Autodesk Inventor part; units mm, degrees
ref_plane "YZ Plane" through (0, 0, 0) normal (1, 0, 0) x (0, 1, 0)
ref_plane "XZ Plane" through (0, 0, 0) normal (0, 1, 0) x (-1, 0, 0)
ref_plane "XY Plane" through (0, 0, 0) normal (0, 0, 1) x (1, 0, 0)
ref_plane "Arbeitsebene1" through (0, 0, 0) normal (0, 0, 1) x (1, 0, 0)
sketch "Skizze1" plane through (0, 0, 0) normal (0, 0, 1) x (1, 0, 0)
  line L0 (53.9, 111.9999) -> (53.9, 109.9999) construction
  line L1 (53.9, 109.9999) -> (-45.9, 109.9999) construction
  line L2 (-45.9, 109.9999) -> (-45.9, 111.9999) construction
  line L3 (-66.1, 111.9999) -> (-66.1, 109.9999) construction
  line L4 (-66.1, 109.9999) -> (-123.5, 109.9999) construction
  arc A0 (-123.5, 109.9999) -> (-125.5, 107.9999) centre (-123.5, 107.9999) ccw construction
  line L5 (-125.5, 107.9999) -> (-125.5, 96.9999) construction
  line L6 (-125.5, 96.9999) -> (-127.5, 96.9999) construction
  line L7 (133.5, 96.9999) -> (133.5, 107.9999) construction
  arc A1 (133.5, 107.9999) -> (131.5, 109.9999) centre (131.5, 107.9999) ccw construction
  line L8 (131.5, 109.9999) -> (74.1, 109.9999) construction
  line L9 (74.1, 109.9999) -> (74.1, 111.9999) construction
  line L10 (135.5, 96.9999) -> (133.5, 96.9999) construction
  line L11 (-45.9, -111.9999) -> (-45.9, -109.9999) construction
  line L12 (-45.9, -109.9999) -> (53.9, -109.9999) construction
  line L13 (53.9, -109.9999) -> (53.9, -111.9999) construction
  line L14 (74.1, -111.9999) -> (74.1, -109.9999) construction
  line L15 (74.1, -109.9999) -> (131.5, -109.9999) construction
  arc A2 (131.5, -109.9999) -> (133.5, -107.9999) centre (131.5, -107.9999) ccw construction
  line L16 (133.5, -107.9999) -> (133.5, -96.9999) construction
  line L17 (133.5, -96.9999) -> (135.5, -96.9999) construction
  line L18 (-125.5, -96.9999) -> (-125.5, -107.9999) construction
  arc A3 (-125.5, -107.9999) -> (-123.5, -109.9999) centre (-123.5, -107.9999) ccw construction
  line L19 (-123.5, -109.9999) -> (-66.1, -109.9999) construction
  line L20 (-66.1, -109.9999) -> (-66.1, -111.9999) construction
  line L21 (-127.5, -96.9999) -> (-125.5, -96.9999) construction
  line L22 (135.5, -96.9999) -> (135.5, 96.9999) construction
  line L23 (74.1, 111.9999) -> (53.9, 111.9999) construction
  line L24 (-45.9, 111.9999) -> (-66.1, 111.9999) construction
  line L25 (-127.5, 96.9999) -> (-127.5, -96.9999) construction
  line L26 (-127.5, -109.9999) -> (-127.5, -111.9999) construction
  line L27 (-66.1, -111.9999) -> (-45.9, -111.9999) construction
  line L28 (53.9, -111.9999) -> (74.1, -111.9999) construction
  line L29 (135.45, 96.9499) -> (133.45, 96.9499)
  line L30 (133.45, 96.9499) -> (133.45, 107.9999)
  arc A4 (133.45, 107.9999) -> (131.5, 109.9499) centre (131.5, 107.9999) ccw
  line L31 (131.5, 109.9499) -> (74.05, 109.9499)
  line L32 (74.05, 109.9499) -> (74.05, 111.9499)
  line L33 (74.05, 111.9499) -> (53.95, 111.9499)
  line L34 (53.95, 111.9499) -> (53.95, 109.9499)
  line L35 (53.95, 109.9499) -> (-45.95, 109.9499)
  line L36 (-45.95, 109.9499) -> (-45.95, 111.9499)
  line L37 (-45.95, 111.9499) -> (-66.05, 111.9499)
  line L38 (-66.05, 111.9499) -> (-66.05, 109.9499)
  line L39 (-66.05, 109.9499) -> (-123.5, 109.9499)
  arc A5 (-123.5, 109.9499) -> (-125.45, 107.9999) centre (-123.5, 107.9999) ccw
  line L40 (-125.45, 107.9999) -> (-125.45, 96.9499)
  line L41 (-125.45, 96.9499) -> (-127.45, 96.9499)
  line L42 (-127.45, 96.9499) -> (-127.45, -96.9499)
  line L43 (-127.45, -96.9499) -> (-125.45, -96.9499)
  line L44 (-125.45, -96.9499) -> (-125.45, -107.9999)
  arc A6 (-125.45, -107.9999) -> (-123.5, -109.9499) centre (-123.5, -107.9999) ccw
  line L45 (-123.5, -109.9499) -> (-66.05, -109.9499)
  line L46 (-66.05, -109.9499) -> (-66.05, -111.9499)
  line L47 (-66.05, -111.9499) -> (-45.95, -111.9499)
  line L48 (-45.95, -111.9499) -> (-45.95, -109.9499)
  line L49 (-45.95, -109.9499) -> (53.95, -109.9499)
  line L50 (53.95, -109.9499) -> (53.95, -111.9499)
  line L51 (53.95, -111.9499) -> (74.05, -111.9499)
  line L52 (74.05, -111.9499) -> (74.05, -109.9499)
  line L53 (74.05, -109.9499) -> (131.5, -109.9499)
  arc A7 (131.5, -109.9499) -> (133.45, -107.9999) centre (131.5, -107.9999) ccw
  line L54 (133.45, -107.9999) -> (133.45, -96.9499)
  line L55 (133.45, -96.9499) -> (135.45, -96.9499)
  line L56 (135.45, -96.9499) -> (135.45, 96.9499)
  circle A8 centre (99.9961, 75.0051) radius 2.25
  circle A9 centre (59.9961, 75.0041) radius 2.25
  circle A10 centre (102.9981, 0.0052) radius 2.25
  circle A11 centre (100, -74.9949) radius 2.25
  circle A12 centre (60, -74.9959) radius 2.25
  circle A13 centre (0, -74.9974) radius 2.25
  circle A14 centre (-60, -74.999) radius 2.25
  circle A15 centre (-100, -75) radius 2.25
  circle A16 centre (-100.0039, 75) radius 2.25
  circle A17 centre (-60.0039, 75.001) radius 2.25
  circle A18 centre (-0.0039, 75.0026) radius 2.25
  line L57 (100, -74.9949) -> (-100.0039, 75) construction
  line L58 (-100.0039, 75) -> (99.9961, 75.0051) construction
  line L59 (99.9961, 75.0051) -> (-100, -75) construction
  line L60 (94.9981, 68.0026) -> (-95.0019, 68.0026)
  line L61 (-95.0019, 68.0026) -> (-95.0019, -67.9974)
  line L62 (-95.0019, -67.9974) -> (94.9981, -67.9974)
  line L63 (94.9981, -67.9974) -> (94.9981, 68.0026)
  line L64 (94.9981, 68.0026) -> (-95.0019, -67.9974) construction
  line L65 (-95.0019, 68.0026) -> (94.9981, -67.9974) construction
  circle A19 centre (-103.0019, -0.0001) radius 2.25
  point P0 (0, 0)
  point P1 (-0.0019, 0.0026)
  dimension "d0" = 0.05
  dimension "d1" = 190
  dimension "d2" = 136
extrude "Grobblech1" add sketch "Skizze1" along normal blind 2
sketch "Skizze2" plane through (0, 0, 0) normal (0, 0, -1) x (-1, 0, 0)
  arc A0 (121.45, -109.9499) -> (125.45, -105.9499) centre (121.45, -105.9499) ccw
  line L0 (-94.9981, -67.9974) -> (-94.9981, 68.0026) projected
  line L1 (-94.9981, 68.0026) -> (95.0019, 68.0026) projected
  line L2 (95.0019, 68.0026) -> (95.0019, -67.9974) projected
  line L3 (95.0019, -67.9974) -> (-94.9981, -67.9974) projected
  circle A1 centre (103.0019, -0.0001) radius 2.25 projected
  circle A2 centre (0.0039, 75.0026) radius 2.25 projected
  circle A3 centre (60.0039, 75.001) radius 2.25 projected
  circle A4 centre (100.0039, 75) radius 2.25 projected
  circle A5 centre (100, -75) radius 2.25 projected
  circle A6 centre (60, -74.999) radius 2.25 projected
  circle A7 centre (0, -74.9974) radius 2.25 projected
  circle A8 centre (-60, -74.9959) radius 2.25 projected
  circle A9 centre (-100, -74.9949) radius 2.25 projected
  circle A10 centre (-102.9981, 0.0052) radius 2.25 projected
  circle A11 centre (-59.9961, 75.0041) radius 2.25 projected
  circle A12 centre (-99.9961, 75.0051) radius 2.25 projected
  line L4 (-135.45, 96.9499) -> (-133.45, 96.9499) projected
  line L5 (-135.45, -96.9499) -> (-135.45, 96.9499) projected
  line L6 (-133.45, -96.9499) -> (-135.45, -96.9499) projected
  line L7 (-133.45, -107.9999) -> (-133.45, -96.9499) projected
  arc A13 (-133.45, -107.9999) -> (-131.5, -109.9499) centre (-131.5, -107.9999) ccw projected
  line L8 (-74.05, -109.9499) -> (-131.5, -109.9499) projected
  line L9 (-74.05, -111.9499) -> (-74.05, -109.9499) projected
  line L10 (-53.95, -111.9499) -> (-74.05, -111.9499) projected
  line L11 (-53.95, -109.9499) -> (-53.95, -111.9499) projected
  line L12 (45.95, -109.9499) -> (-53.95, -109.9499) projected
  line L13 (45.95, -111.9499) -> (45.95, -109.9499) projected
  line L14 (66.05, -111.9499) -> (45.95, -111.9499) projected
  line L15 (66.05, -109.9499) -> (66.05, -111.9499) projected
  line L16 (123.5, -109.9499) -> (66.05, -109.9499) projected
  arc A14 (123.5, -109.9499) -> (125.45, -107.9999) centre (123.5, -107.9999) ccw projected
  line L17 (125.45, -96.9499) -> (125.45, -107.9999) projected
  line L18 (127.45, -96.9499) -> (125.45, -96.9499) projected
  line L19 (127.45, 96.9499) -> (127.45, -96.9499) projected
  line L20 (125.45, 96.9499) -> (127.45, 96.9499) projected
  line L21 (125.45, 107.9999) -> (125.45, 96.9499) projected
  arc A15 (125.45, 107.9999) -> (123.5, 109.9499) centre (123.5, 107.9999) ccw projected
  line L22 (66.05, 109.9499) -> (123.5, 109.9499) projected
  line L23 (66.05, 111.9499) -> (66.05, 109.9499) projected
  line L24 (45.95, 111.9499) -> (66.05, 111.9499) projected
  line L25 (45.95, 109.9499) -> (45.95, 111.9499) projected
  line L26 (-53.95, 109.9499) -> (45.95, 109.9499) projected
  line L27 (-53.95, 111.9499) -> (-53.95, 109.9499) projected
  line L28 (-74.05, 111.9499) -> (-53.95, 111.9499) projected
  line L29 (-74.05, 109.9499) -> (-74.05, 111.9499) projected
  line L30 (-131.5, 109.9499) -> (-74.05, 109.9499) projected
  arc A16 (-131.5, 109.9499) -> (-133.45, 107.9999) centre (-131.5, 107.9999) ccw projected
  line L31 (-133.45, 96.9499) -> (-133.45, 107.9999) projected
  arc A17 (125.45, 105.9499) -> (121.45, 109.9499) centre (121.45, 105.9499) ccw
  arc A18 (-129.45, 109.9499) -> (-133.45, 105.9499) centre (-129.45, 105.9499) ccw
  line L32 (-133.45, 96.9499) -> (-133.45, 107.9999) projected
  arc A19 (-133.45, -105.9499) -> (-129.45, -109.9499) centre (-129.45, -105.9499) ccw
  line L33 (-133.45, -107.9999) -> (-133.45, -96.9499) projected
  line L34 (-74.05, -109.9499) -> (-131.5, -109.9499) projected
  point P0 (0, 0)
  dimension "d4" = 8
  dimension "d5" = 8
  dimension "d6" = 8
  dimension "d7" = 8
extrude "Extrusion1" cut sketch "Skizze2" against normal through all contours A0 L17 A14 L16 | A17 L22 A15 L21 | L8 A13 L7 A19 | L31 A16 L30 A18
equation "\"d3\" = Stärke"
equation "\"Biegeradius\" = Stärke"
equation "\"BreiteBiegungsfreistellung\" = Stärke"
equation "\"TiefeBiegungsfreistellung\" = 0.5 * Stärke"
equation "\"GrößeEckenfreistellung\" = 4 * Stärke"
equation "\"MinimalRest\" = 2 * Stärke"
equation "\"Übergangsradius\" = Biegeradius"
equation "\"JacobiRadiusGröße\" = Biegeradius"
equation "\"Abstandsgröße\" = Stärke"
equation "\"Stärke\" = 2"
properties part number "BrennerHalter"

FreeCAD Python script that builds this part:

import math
import FreeCAD as App
import Part
import Sketcher

doc = App.newDocument("Part")
body = doc.addObject("PartDesign::Body", "Body")

sketch1 = body.newObject("Sketcher::SketchObject", "Sketch")
sketch1.AttachmentSupport = (doc.getObject("XY_Plane"), [""])
sketch1.MapMode = "FlatFace"
sketch1.addGeometry([
    Part.LineSegment(App.Vector(135.4, -96.9, 0), App.Vector(135.4, 96.9, 0)),
    Part.LineSegment(App.Vector(135.4, 96.9, 0), App.Vector(133.4, 96.9, 0)),
    Part.LineSegment(App.Vector(133.4, 96.9, 0), App.Vector(133.4, 108, 0)),
    Part.ArcOfCircle(Part.Circle(App.Vector(131.5, 108, 0), App.Vector(0, 0, 1), 1.9), math.radians(0), math.radians(90)),
    Part.LineSegment(App.Vector(131.5, 109.9, 0), App.Vector(74, 109.9, 0)),
    Part.LineSegment(App.Vector(74, 109.9, 0), App.Vector(74, 111.9, 0)),
    Part.LineSegment(App.Vector(74, 111.9, 0), App.Vector(54, 111.9, 0)),
    Part.LineSegment(App.Vector(54, 111.9, 0), App.Vector(54, 109.9, 0)),
    Part.LineSegment(App.Vector(54, 109.9, 0), App.Vector(-46, 109.9, 0)),
    Part.LineSegment(App.Vector(-46, 109.9, 0), App.Vector(-46, 111.9, 0)),
    Part.LineSegment(App.Vector(-46, 111.9, 0), App.Vector(-66, 111.9, 0)),
    Part.LineSegment(App.Vector(-66, 111.9, 0), App.Vector(-66, 109.9, 0)),
    Part.LineSegment(App.Vector(-66, 109.9, 0), App.Vector(-123.5, 109.9, 0)),
    Part.ArcOfCircle(Part.Circle(App.Vector(-123.5, 108, 0), App.Vector(0, 0, 1), 2), math.radians(90), math.radians(180)),
    Part.LineSegment(App.Vector(-125.5, 108, 0), App.Vector(-125.5, 96.9, 0)),
    Part.LineSegment(App.Vector(-125.5, 96.9, 0), App.Vector(-127.5, 96.9, 0)),
    Part.LineSegment(App.Vector(-127.5, 96.9, 0), App.Vector(-127.5, -96.9, 0)),
    Part.LineSegment(App.Vector(-127.5, -96.9, 0), App.Vector(-125.5, -96.9, 0)),
    Part.LineSegment(App.Vector(-125.5, -96.9, 0), App.Vector(-125.5, -108, 0)),
    Part.ArcOfCircle(Part.Circle(App.Vector(-123.5, -108, 0), App.Vector(0, 0, 1), 2), math.radians(180), math.radians(270)),
    Part.LineSegment(App.Vector(-123.5, -109.9, 0), App.Vector(-66, -109.9, 0)),
    Part.LineSegment(App.Vector(-66, -109.9, 0), App.Vector(-66, -111.9, 0)),
    Part.LineSegment(App.Vector(-66, -111.9, 0), App.Vector(-46, -111.9, 0)),
    Part.LineSegment(App.Vector(-46, -111.9, 0), App.Vector(-46, -109.9, 0)),
    Part.LineSegment(App.Vector(-46, -109.9, 0), App.Vector(54, -109.9, 0)),
    Part.LineSegment(App.Vector(54, -109.9, 0), App.Vector(54, -111.9, 0)),
    Part.LineSegment(App.Vector(54, -111.9, 0), App.Vector(74, -111.9, 0)),
    Part.LineSegment(App.Vector(74, -111.9, 0), App.Vector(74, -109.9, 0)),
    Part.LineSegment(App.Vector(74, -109.9, 0), App.Vector(131.5, -109.9, 0)),
    Part.ArcOfCircle(Part.Circle(App.Vector(131.5, -108, 0), App.Vector(0, 0, 1), 2), math.radians(-90), math.radians(0)),
    Part.LineSegment(App.Vector(133.4, -108, 0), App.Vector(133.4, -96.9, 0)),
    Part.LineSegment(App.Vector(133.4, -96.9, 0), App.Vector(135.4, -96.9, 0)),
    Part.Circle(App.Vector(-100, -75, 0), App.Vector(0, 0, 1), 2.2),
    Part.Circle(App.Vector(-60, -75, 0), App.Vector(0, 0, 1), 2.2),
    Part.Circle(App.Vector(0, -75, 0), App.Vector(0, 0, 1), 2.2),
    Part.Circle(App.Vector(-103, 0, 0), App.Vector(0, 0, 1), 2.2),
    Part.Circle(App.Vector(60, -75, 0), App.Vector(0, 0, 1), 2.2),
    Part.Circle(App.Vector(100, -75, 0), App.Vector(0, 0, 1), 2.2),
    Part.LineSegment(App.Vector(-95, 68, 0), App.Vector(95, 68, 0)),
    Part.LineSegment(App.Vector(95, 68, 0), App.Vector(95, -68, 0)),
    Part.LineSegment(App.Vector(95, -68, 0), App.Vector(-95, -68, 0)),
    Part.LineSegment(App.Vector(-95, -68, 0), App.Vector(-95, 68, 0)),
    Part.Circle(App.Vector(-100, 75, 0), App.Vector(0, 0, 1), 2.2),
    Part.Circle(App.Vector(-60, 75, 0), App.Vector(0, 0, 1), 2.2),
    Part.Circle(App.Vector(0, 75, 0), App.Vector(0, 0, 1), 2.2),
    Part.Circle(App.Vector(103, 0, 0), App.Vector(0, 0, 1), 2.2),
    Part.Circle(App.Vector(60, 75, 0), App.Vector(0, 0, 1), 2.2),
    Part.Circle(App.Vector(100, 75, 0), App.Vector(0, 0, 1), 2.2),
], False)
sketch1.addConstraint([
    Sketcher.Constraint("Coincident", 0, 2, 1, 1),
    Sketcher.Constraint("Coincident", 1, 2, 2, 1),
    Sketcher.Constraint("Tangent", 2, 2, 3, 1),
    Sketcher.Constraint("Tangent", 3, 2, 4, 1),
    Sketcher.Constraint("Coincident", 4, 2, 5, 1),
    Sketcher.Constraint("Coincident", 5, 2, 6, 1),
    Sketcher.Constraint("Coincident", 6, 2, 7, 1),
    Sketcher.Constraint("Coincident", 7, 2, 8, 1),
    Sketcher.Constraint("Coincident", 8, 2, 9, 1),
    Sketcher.Constraint("Coincident", 9, 2, 10, 1),
    Sketcher.Constraint("Coincident", 10, 2, 11, 1),
    Sketcher.Constraint("Coincident", 11, 2, 12, 1),
    Sketcher.Constraint("Tangent", 12, 2, 13, 1),
    Sketcher.Constraint("Tangent", 13, 2, 14, 1),
    Sketcher.Constraint("Coincident", 14, 2, 15, 1),
    Sketcher.Constraint("Coincident", 15, 2, 16, 1),
    Sketcher.Constraint("Coincident", 16, 2, 17, 1),
    Sketcher.Constraint("Coincident", 17, 2, 18, 1),
    Sketcher.Constraint("Tangent", 18, 2, 19, 1),
    Sketcher.Constraint("Tangent", 19, 2, 20, 1),
    Sketcher.Constraint("Coincident", 20, 2, 21, 1),
    Sketcher.Constraint("Coincident", 21, 2, 22, 1),
    Sketcher.Constraint("Coincident", 22, 2, 23, 1),
    Sketcher.Constraint("Coincident", 23, 2, 24, 1),
    Sketcher.Constraint("Coincident", 24, 2, 25, 1),
    Sketcher.Constraint("Coincident", 25, 2, 26, 1),
    Sketcher.Constraint("Coincident", 26, 2, 27, 1),
    Sketcher.Constraint("Coincident", 27, 2, 28, 1),
    Sketcher.Constraint("Tangent", 28, 2, 29, 1),
    Sketcher.Constraint("Tangent", 29, 2, 30, 1),
    Sketcher.Constraint("Coincident", 30, 2, 31, 1),
    Sketcher.Constraint("Coincident", 31, 2, 0, 1),
    Sketcher.Constraint("Coincident", 38, 2, 39, 1),
    Sketcher.Constraint("Coincident", 39, 2, 40, 1),
    Sketcher.Constraint("Coincident", 40, 2, 41, 1),
    Sketcher.Constraint("Coincident", 41, 2, 38, 1),
    Sketcher.Constraint("Vertical", 0),
    Sketcher.Constraint("Horizontal", 1),
    Sketcher.Constraint("Vertical", 2),
    Sketcher.Constraint("Horizontal", 4),
    Sketcher.Constraint("Vertical", 5),
    Sketcher.Constraint("Horizontal", 6),
    Sketcher.Constraint("Vertical", 7),
    Sketcher.Constraint("Horizontal", 8),
    Sketcher.Constraint("Vertical", 9),
    Sketcher.Constraint("Horizontal", 10),
    Sketcher.Constraint("Vertical", 11),
    Sketcher.Constraint("Horizontal", 12),
    Sketcher.Constraint("Vertical", 14),
    Sketcher.Constraint("Horizontal", 15),
    Sketcher.Constraint("Vertical", 16),
    Sketcher.Constraint("Horizontal", 17),
    Sketcher.Constraint("Vertical", 18),
    Sketcher.Constraint("Horizontal", 20),
    Sketcher.Constraint("Vertical", 21),
    Sketcher.Constraint("Horizontal", 22),
    Sketcher.Constraint("Vertical", 23),
    Sketcher.Constraint("Horizontal", 24),
    Sketcher.Constraint("Vertical", 25),
    Sketcher.Constraint("Horizontal", 26),
    Sketcher.Constraint("Vertical", 27),
    Sketcher.Constraint("Horizontal", 28),
    Sketcher.Constraint("Vertical", 30),
    Sketcher.Constraint("Horizontal", 31),
    Sketcher.Constraint("Horizontal", 38),
    Sketcher.Constraint("Vertical", 39),
    Sketcher.Constraint("Horizontal", 40),
    Sketcher.Constraint("Vertical", 41),
    Sketcher.Constraint("Equal", 3, 13),
    Sketcher.Constraint("Equal", 13, 19),
    Sketcher.Constraint("Equal", 19, 29),
    Sketcher.Constraint("Equal", 32, 33),
    Sketcher.Constraint("Equal", 33, 34),
    Sketcher.Constraint("Equal", 34, 35),
    Sketcher.Constraint("Equal", 35, 36),
    Sketcher.Constraint("Equal", 36, 37),
    Sketcher.Constraint("Equal", 37, 42),
    Sketcher.Constraint("Equal", 42, 43),
    Sketcher.Constraint("Equal", 43, 44),
    Sketcher.Constraint("Equal", 44, 45),
    Sketcher.Constraint("Equal", 45, 46),
    Sketcher.Constraint("Equal", 46, 47),
    Sketcher.Constraint("Symmetric", 13, 3, 19, 3, -1),
    Sketcher.Constraint("Symmetric", 3, 3, 29, 3, -1),
    Sketcher.Constraint("Symmetric", 10, 2, 21, 2, -1),
    Sketcher.Constraint("Symmetric", 8, 2, 23, 2, -1),
    Sketcher.Constraint("Symmetric", 6, 2, 25, 2, -1),
    Sketcher.Constraint("PointOnObject", 34, 3, -2),
    Sketcher.Constraint("PointOnObject", 35, 3, -1),
    Sketcher.Constraint("Horizontal", 3, 3, 13, 3),
    Sketcher.Constraint("Horizontal", 4, 2, 7, 2),
    Sketcher.Constraint("Horizontal", 6, 2, 9, 2),
    Sketcher.Constraint("Horizontal", 1, 2, 14, 2),
    Sketcher.Constraint("Horizontal", 17, 2, 30, 2),
    Sketcher.Constraint("Vertical", 5, 2, 26, 2),
    Sketcher.Constraint("Equal", 6, 10),
    Sketcher.Constraint("Equal", 4, 12),
    Sketcher.Constraint("Equal", 1, 15),
    Sketcher.Constraint("Equal", 31, 5),
    Sketcher.Constraint("Equal", 14, 18),
    Sketcher.Constraint("DistanceX", 38, 1, 38, 2, 190.0),
    Sketcher.Constraint("DistanceY", 39, 2, 39, 1, 136.0),
    Sketcher.Constraint("Diameter", 32, 4.5),
    Sketcher.Constraint("DistanceX", 1, 2, 1, 1, 2.0),
    Sketcher.Constraint("Radius", 3, 1.95),
    Sketcher.Constraint("DistanceX", 6, 2, 6, 1, 20.1),
    Sketcher.Constraint("DistanceX", 8, 2, 8, 1, 99.9),
    Sketcher.Constraint("DistanceY", -1, 1, 3, 3, 108.0),
    Sketcher.Constraint("DistanceX", 32, 3, -1, 1, 100.0),
    Sketcher.Constraint("DistanceY", 32, 3, -1, 1, 75.0),
    Sketcher.Constraint("DistanceX", 33, 3, -1, 1, 60.0),
    Sketcher.Constraint("DistanceX", -1, 1, 36, 3, 60.0),
    Sketcher.Constraint("DistanceX", -1, 1, 37, 3, 100.0),
    Sketcher.Constraint("DistanceY", -1, 1, 42, 3, 75.0),
    Sketcher.Constraint("DistanceX", 13, 3, 3, 3, 255.0),
    Sketcher.Constraint("DistanceX", 42, 3, 43, 3, 40.0),
    Sketcher.Constraint("DistanceY", 33, 3, 43, 3, 150.0),
    Sketcher.Constraint("DistanceX", 43, 3, 44, 3, 60.0),
    Sketcher.Constraint("DistanceY", 37, 3, 45, 3, 75.0),
    Sketcher.Constraint("DistanceX", 44, 3, 46, 3, 60.0),
    Sketcher.Constraint("DistanceY", 36, 3, 46, 3, 150.0),
    Sketcher.Constraint("DistanceX", 46, 3, 47, 3, 40.0),
    Sketcher.Constraint("DistanceY", 45, 3, 47, 3, 75.0),
    Sketcher.Constraint("DistanceY", 1, 2, 3, 2, 13.0),
    Sketcher.Constraint("DistanceX", -1, 1, 3, 3, 131.5),
    Sketcher.Constraint("DistanceY", 33, 3, -1, 1, 74.999),
    Sketcher.Constraint("DistanceX", 35, 3, -1, 1, 103.002),
    Sketcher.Constraint("DistanceY", 36, 3, -1, 1, 74.996),
    Sketcher.Constraint("DistanceY", 37, 3, -1, 1, 74.995),
    Sketcher.Constraint("DistanceX", 42, 3, -1, 1, 100.004),
    Sketcher.Constraint("DistanceX", -1, 1, 45, 3, 102.998),
    Sketcher.Constraint("DistanceX", -1, 1, 38, 2, 94.998),
    Sketcher.Constraint("DistanceY", 34, 3, -1, 1, 74.9974),
    Sketcher.Constraint("DistanceY", -1, 1, 44, 3, 75.0026),
    Sketcher.Constraint("DistanceY", -1, 1, 38, 2, 68.0026),
])
pad1 = body.newObject("PartDesign::Pad", "Pad")
pad1.Profile = sketch1
pad1.Length = 2

sketch2 = body.newObject("Sketcher::SketchObject", "Sketch001")
sketch2.AttachmentSupport = (doc.getObject("XY_Plane"), [""])
sketch2.MapMode = "FlatFace"
sketch2.addGeometry([
    Part.ArcOfCircle(Part.Circle(App.Vector(-121.5, -105.9, 0), App.Vector(0, 0, 1), 4), math.radians(180), math.radians(270)),
    Part.LineSegment(App.Vector(-121.5, -109.9, 0), App.Vector(-123.5, -109.9, 0)),
    Part.ArcOfCircle(Part.Circle(App.Vector(-123.5, -108, 0), App.Vector(0, 0, 1), 2), math.radians(180), math.radians(270)),
    Part.LineSegment(App.Vector(-125.5, -108, 0), App.Vector(-125.5, -105.9, 0)),
    Part.ArcOfCircle(Part.Circle(App.Vector(-121.5, 105.9, 0), App.Vector(0, 0, 1), 4), math.radians(90), math.radians(180)),
    Part.LineSegment(App.Vector(-125.5, 105.9, 0), App.Vector(-125.5, 108, 0)),
    Part.ArcOfCircle(Part.Circle(App.Vector(-123.5, 108, 0), App.Vector(0, 0, 1), 2), math.radians(90), math.radians(180)),
    Part.LineSegment(App.Vector(-123.5, 109.9, 0), App.Vector(-121.5, 109.9, 0)),
    Part.LineSegment(App.Vector(131.5, -109.9, 0), App.Vector(129.4, -109.9, 0)),
    Part.ArcOfCircle(Part.Circle(App.Vector(129.4, -105.9, 0), App.Vector(0, 0, 1), 4), math.radians(-90), math.radians(0)),
    Part.LineSegment(App.Vector(133.4, -105.9, 0), App.Vector(133.4, -108, 0)),
    Part.ArcOfCircle(Part.Circle(App.Vector(131.5, -108, 0), App.Vector(0, 0, 1), 1.9), math.radians(-90), math.radians(0)),
    Part.LineSegment(App.Vector(133.4, 108, 0), App.Vector(133.4, 105.9, 0)),
    Part.ArcOfCircle(Part.Circle(App.Vector(129.4, 105.9, 0), App.Vector(0, 0, 1), 4), math.radians(0), math.radians(90)),
    Part.LineSegment(App.Vector(129.4, 109.9, 0), App.Vector(131.5, 109.9, 0)),
    Part.ArcOfCircle(Part.Circle(App.Vector(131.5, 108, 0), App.Vector(0, 0, 1), 2), math.radians(0), math.radians(90)),
], False)
sketch2.addConstraint([
    Sketcher.Constraint("Tangent", 0, 2, 1, 1),
    Sketcher.Constraint("Tangent", 1, 2, 2, 2),
    Sketcher.Constraint("Tangent", 2, 1, 3, 1),
    Sketcher.Constraint("Tangent", 3, 2, 0, 1),
    Sketcher.Constraint("Tangent", 4, 2, 5, 1),
    Sketcher.Constraint("Tangent", 5, 2, 6, 2),
    Sketcher.Constraint("Tangent", 6, 1, 7, 1),
    Sketcher.Constraint("Tangent", 7, 2, 4, 1),
    Sketcher.Constraint("Tangent", 8, 2, 9, 1),
    Sketcher.Constraint("Tangent", 9, 2, 10, 1),
    Sketcher.Constraint("Tangent", 10, 2, 11, 2),
    Sketcher.Constraint("Tangent", 11, 1, 8, 1),
    Sketcher.Constraint("Tangent", 12, 2, 13, 1),
    Sketcher.Constraint("Tangent", 13, 2, 14, 1),
    Sketcher.Constraint("Tangent", 14, 2, 15, 2),
    Sketcher.Constraint("Tangent", 15, 1, 12, 1),
    Sketcher.Constraint("Horizontal", 1),
    Sketcher.Constraint("Vertical", 3),
    Sketcher.Constraint("Vertical", 5),
    Sketcher.Constraint("Horizontal", 7),
    Sketcher.Constraint("Horizontal", 8),
    Sketcher.Constraint("Vertical", 10),
    Sketcher.Constraint("Vertical", 12),
    Sketcher.Constraint("Horizontal", 14),
    Sketcher.Constraint("Equal", 0, 4),
    Sketcher.Constraint("Equal", 2, 6),
    Sketcher.Constraint("Equal", 4, 9),
    Sketcher.Constraint("Equal", 6, 11),
    Sketcher.Constraint("Equal", 9, 13),
    Sketcher.Constraint("Equal", 11, 15),
    Sketcher.Constraint("Symmetric", 0, 3, 4, 3, -1),
    Sketcher.Constraint("Symmetric", 9, 3, 13, 3, -1),
    Sketcher.Constraint("Horizontal", 0, 3, 9, 3),
    Sketcher.Constraint("Radius", 0, 4.0),
    Sketcher.Constraint("Radius", 2, 1.95),
    Sketcher.Constraint("DistanceY", 2, 3, -1, 1, 108.0),
    Sketcher.Constraint("DistanceX", 2, 3, 11, 3, 255.0),
    Sketcher.Constraint("DistanceX", 2, 3, -1, 1, 123.5),
])
pocket1 = body.newObject("PartDesign::Pocket", "Pocket")
pocket1.Profile = sketch2
pocket1.Type = "ThroughAll"
pocket1.Reversed = True

doc.recompute()
